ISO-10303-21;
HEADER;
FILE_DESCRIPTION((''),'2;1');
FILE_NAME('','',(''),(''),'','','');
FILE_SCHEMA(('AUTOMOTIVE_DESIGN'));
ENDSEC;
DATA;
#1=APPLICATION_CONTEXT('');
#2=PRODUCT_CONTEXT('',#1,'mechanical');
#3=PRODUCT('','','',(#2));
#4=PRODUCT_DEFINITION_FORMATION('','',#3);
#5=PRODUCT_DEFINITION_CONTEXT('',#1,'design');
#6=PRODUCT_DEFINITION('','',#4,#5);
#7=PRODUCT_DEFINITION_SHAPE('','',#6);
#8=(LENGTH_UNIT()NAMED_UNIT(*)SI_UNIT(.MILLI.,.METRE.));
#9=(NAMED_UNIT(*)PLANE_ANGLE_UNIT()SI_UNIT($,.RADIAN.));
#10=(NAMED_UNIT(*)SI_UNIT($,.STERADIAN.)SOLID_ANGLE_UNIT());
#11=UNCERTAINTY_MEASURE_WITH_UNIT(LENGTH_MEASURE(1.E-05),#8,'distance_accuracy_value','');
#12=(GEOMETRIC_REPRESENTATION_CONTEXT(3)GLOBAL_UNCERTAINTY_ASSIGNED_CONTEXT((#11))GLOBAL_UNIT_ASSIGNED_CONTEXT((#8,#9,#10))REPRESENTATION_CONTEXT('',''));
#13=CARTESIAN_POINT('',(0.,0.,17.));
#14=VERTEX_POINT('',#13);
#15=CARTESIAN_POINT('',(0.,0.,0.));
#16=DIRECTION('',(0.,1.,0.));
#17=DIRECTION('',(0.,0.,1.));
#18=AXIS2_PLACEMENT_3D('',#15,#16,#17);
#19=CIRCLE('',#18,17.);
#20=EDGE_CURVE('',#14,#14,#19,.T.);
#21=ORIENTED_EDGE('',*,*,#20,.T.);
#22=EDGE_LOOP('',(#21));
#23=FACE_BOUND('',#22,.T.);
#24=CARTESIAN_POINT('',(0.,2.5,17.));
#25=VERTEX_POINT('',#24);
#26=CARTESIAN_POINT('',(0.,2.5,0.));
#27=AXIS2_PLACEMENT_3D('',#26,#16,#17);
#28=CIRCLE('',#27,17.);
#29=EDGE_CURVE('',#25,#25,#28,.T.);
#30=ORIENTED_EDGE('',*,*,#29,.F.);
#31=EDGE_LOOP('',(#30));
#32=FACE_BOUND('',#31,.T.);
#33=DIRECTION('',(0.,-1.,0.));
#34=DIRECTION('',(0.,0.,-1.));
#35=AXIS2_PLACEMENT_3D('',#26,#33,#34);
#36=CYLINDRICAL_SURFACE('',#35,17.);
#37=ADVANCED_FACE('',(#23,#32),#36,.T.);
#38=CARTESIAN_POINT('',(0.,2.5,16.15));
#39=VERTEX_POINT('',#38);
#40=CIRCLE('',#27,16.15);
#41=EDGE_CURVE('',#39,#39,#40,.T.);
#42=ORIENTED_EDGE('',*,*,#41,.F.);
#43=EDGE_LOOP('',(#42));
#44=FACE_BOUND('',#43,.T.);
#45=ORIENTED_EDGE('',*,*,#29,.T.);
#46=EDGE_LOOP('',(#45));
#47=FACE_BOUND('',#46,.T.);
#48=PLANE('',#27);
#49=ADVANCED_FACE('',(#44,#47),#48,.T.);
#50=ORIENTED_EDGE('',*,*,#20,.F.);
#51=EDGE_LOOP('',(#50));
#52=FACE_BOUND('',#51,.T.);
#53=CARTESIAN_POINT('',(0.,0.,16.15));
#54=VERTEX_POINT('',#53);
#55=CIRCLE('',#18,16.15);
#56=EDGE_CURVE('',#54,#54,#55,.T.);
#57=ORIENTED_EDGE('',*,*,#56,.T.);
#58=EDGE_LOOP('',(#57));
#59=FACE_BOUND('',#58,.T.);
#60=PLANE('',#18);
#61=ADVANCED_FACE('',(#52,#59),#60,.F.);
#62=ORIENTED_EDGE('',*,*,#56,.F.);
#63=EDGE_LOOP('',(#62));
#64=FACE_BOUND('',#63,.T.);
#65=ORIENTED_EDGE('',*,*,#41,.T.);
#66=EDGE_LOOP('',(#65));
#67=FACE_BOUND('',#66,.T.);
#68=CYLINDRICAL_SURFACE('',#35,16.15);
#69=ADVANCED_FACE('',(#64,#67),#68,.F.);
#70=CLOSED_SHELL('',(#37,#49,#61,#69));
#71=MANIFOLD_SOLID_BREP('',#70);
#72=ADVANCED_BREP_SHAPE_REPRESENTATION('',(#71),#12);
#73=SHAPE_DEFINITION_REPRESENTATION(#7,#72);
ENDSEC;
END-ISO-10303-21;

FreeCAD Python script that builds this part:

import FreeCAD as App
import Part
import Sketcher
from FreeCAD import Vector

doc = App.newDocument("Part")
params = doc.addObject("Spreadsheet::Sheet", "Params")
for row, (alias, value) in enumerate([
    ("sketch1_diameter", "34 mm"),
    ("sketch1_diameter2", "32.3 mm"),
    ("pad1_length", "2.5 mm"),
], start=1):
    params.set(f"A{row}", alias)
    params.set(f"B{row}", "=" + value)
    params.setAlias(f"B{row}", alias)

body = doc.addObject("PartDesign::Body", "Body")

sketch1 = body.newObject("Sketcher::SketchObject", "Sketch")
sketch1.AttachmentSupport = (doc.getObject("XZ_Plane"), [""])
sketch1.MapMode = "FlatFace"
sketch1.addGeometry([
    Part.Circle(Vector(0, 0, 0), Vector(0, 0, 1), 17),
    Part.Circle(Vector(0, 0, 0), Vector(0, 0, 1), 16.15),
], False)
sketch1.addConstraint([
    Sketcher.Constraint("Coincident", 0, 3, -1, 1),
    Sketcher.Constraint("Coincident", 1, 3, -1, 1),
    Sketcher.Constraint("Diameter", 0, 34.0),
    Sketcher.Constraint("Diameter", 1, 32.3),
])
sketch1.setExpression("Constraints[2]", "Params.sketch1_diameter")
sketch1.setExpression("Constraints[3]", "Params.sketch1_diameter2")
pad1 = body.newObject("PartDesign::Pad", "Pad")
pad1.Profile = sketch1
pad1.setExpression("Length", "Params.pad1_length")
pad1.Reversed = True

doc.recompute()
